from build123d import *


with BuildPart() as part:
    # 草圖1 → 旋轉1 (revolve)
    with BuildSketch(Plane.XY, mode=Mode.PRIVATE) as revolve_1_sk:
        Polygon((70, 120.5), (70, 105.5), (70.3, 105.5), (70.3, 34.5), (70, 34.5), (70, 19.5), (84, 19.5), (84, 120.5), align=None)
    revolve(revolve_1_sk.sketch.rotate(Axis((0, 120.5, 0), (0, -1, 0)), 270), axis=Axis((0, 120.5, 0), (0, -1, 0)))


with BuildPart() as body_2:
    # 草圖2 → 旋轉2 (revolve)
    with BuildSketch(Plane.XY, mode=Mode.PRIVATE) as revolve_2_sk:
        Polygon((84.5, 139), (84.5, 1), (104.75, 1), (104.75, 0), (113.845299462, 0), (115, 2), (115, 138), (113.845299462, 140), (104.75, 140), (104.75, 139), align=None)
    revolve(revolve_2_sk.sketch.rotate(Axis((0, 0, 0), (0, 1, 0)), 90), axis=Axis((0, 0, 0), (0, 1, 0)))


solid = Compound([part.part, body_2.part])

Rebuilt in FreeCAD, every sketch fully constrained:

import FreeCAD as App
import Part
import Sketcher
Q = App.Units.Quantity


def add_polygon(sketch, points):
    """Adds a closed chain of lines whose ends are joined by coincident constraints."""
    first, n = sketch.GeometryCount, len(points)
    for a, b in zip(points, points[1:] + points[:1]):
        sketch.addGeometry(Part.LineSegment(App.Vector(*a, 0), App.Vector(*b, 0)), False)
    for i in range(n):
        sketch.addConstraint(Sketcher.Constraint("Coincident", first + i, 2, first + (i + 1) % n, 1))

doc = App.newDocument("Part")
body = doc.addObject("PartDesign::Body", "Body")

# Sketch on XY plane
sketch1 = body.newObject("Sketcher::SketchObject", "Sketch")
sketch1.AttachmentSupport = (doc.getObject("XY_Plane"), [""])
sketch1.MapMode = "FlatFace"
add_polygon(sketch1, [(70, 120.5), (70, 105.5), (70.3, 105.5), (70.3, 34.5), (70, 34.5), (70, 19.5), (84, 19.5), (84, 120.5)])  # lines 0-7
sketch1.addConstraint([
    Sketcher.Constraint("Vertical", 0),
    Sketcher.Constraint("Horizontal", 1),
    Sketcher.Constraint("Vertical", 2),
    Sketcher.Constraint("Horizontal", 3),
    Sketcher.Constraint("Vertical", 4),
    Sketcher.Constraint("Horizontal", 5),
    Sketcher.Constraint("Vertical", 6),
    Sketcher.Constraint("Horizontal", 7),
    Sketcher.Constraint("Vertical", 0, 2, 3, 2),
    Sketcher.Constraint("Equal", 0, 4),
    Sketcher.Constraint("DistanceX", 5, 1, 5, 2, Q("14 mm")),
    Sketcher.Constraint("DistanceY", 0, 2, 0, 1, Q("15 mm")),
    Sketcher.Constraint("DistanceY", 2, 2, 2, 1, Q("71 mm")),
    Sketcher.Constraint("DistanceX", 1, 1, 1, 2, Q("0.3 mm")),
    Sketcher.Constraint("DistanceX", -1, 1, 0, 2, Q("70 mm")),
    Sketcher.Constraint("DistanceY", -1, 1, 0, 2, Q("105.5 mm")),
])
revolution = body.newObject("PartDesign::Revolution", "Revolution")
revolution.Profile = sketch1
revolution.ReferenceAxis = (sketch1, ["V_Axis"])
revolution.Angle = 360
body2 = doc.addObject("PartDesign::Body", "Body001")

# Sketch on XY plane
sketch2 = body2.newObject("Sketcher::SketchObject", "Sketch001")
sketch2.AttachmentSupport = (doc.getObject("XY_Plane001"), [""])
sketch2.MapMode = "FlatFace"
add_polygon(sketch2, [(84.5, 139), (84.5, 1), (104.8, 1), (104.8, 0), (113.8, 0), (115, 2), (115, 138), (113.8, 140), (104.8, 140), (104.8, 139)])  # lines 0-9
sketch2.addConstraint([
    Sketcher.Constraint("Vertical", 0),
    Sketcher.Constraint("Horizontal", 1),
    Sketcher.Constraint("Vertical", 2),
    Sketcher.Constraint("Horizontal", 3),
    Sketcher.Constraint("Vertical", 5),
    Sketcher.Constraint("Horizontal", 7),
    Sketcher.Constraint("Vertical", 8),
    Sketcher.Constraint("Horizontal", 9),
    Sketcher.Constraint("PointOnObject", 2, 2, -1),
    Sketcher.Constraint("Vertical", 3, 2, 6, 2),
    Sketcher.Constraint("Vertical", 2, 2, 7, 2),
    Sketcher.Constraint("Equal", 2, 8),
    Sketcher.Constraint("Equal", 4, 6),
    Sketcher.Constraint("DistanceY", 0, 2, 0, 1, Q("138 mm")),
    Sketcher.Constraint("DistanceY", 2, 2, 2, 1, Q("1 mm")),
    Sketcher.Constraint("DistanceY", 5, 1, 5, 2, Q("136 mm")),
    Sketcher.Constraint("Angle", 4, Q("60 deg")),
    Sketcher.Constraint("DistanceX", -1, 1, 4, 2, Q("115 mm")),
    Sketcher.Constraint("DistanceX", 1, 1, 1, 2, Q("20.25 mm")),
    Sketcher.Constraint("DistanceX", -1, 1, 0, 2, Q("84.5 mm")),
])
revolution2 = body2.newObject("PartDesign::Revolution", "Revolution001")
revolution2.Profile = sketch2
revolution2.ReferenceAxis = (sketch2, ["V_Axis"])
revolution2.Angle = 360

doc.recompute()
